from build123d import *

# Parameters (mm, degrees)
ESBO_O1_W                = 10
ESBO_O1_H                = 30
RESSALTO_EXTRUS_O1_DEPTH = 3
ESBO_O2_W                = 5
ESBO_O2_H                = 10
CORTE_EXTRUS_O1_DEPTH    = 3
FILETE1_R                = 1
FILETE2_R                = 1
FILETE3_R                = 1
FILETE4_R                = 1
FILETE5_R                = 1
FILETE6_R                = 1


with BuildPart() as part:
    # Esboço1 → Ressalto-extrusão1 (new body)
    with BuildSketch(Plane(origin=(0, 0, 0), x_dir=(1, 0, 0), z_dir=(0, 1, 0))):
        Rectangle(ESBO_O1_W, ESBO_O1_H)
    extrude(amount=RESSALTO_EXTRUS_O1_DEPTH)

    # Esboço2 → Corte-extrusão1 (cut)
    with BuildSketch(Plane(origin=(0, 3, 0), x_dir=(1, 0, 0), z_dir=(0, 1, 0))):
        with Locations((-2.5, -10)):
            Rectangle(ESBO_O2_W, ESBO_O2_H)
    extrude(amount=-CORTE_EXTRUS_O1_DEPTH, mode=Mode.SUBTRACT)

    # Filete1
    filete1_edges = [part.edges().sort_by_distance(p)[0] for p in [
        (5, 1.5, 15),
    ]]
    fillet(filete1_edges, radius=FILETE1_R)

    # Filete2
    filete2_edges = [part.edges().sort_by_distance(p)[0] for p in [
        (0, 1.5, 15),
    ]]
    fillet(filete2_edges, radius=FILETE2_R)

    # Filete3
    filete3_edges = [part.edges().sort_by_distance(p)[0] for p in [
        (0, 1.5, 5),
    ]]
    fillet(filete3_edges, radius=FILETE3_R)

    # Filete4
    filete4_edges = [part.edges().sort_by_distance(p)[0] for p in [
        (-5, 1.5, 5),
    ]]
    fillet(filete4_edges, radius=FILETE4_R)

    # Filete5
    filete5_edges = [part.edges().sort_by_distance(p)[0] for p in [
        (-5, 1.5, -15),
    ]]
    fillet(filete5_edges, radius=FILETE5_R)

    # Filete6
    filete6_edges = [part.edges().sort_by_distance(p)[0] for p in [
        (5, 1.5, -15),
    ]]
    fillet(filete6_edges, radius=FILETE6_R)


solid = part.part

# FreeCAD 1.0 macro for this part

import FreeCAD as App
import Part
import Sketcher
Q = App.Units.Quantity


def edges_at(feature, points):
    """Names of the edges that pass closest to the given points."""
    edges = feature.Shape.Edges
    near = lambda p: min(range(len(edges)), key=lambda i: edges[i].distToShape(Part.Vertex(*p))[0])
    return sorted({f"Edge{near(p) + 1}" for p in points})

doc = App.newDocument("Part")
body = doc.addObject("PartDesign::Body", "Body")

# Sketch on XZ plane
sketch1 = body.newObject("Sketcher::SketchObject", "Sketch")
sketch1.AttachmentSupport = (doc.getObject("XZ_Plane"), [""])
sketch1.MapMode = "FlatFace"
sketch1.addGeometry(Part.LineSegment(App.Vector(-5, -15, 0), App.Vector(-5, 15, 0)), False)
sketch1.addGeometry(Part.LineSegment(App.Vector(-5, 15, 0), App.Vector(5, 15, 0)), False)
sketch1.addGeometry(Part.LineSegment(App.Vector(5, 15, 0), App.Vector(5, -15, 0)), False)
sketch1.addGeometry(Part.LineSegment(App.Vector(5, -15, 0), App.Vector(-5, -15, 0)), False)
sketch1.addConstraint(Sketcher.Constraint("Coincident", 0, 2, 1, 1))
sketch1.addConstraint(Sketcher.Constraint("Coincident", 1, 2, 2, 1))
sketch1.addConstraint(Sketcher.Constraint("Coincident", 2, 2, 3, 1))
sketch1.addConstraint(Sketcher.Constraint("Coincident", 3, 2, 0, 1))
sketch1.addConstraint(Sketcher.Constraint("Vertical", 0))
sketch1.addConstraint(Sketcher.Constraint("Horizontal", 1))
sketch1.addConstraint(Sketcher.Constraint("Vertical", 2))
sketch1.addConstraint(Sketcher.Constraint("Horizontal", 3))
sketch1.addConstraint(Sketcher.Constraint("Symmetric", 0, 2, 2, 2, -1, 1))
sketch1.addConstraint(Sketcher.Constraint("DistanceX", 1, 1, 1, 2, Q("10 mm")))
sketch1.addConstraint(Sketcher.Constraint("DistanceY", 0, 1, 0, 2, Q("30 mm")))
pad1 = body.newObject("PartDesign::Pad", "Pad")
pad1.Profile = sketch1
pad1.Length = 3
pad1.Reversed = True

# Sketch on XZ plane
sketch2 = body.newObject("Sketcher::SketchObject", "Sketch001")
sketch2.AttachmentSupport = (doc.getObject("XZ_Plane"), [""])
sketch2.MapMode = "FlatFace"
sketch2.AttachmentOffset = App.Placement(App.Vector(0, 0, -3), App.Rotation())
sketch2.addGeometry(Part.LineSegment(App.Vector(-5, 5, 0), App.Vector(-5, 15, 0)), False)
sketch2.addGeometry(Part.LineSegment(App.Vector(-5, 15, 0), App.Vector(0, 15, 0)), False)
sketch2.addGeometry(Part.LineSegment(App.Vector(0, 15, 0), App.Vector(0, 5, 0)), False)
sketch2.addGeometry(Part.LineSegment(App.Vector(0, 5, 0), App.Vector(-5, 5, 0)), False)
sketch2.addConstraint(Sketcher.Constraint("Coincident", 0, 2, 1, 1))
sketch2.addConstraint(Sketcher.Constraint("Coincident", 1, 2, 2, 1))
sketch2.addConstraint(Sketcher.Constraint("Coincident", 2, 2, 3, 1))
sketch2.addConstraint(Sketcher.Constraint("Coincident", 3, 2, 0, 1))
sketch2.addConstraint(Sketcher.Constraint("Vertical", 0))
sketch2.addConstraint(Sketcher.Constraint("Horizontal", 1))
sketch2.addConstraint(Sketcher.Constraint("Vertical", 2))
sketch2.addConstraint(Sketcher.Constraint("Horizontal", 3))
sketch2.addConstraint(Sketcher.Constraint("PointOnObject", 1, 2, -2))
sketch2.addConstraint(Sketcher.Constraint("DistanceX", 1, 1, 1, 2, Q("5 mm")))
sketch2.addConstraint(Sketcher.Constraint("DistanceY", 0, 1, 0, 2, Q("10 mm")))
sketch2.addConstraint(Sketcher.Constraint("DistanceY", -1, 1, 0, 2, Q("15 mm")))
pocket1 = body.newObject("PartDesign::Pocket", "Pocket")
pocket1.Profile = sketch2
pocket1.Length = 3
pocket1.Reversed = True
doc.recompute()

fillet = body.newObject("PartDesign::Fillet", "Fillet")
fillet.Base = (pocket1, edges_at(pocket1, [(5, 1.5, 15)]))
fillet.Radius = 1
doc.recompute()

fillet2 = body.newObject("PartDesign::Fillet", "Fillet001")
fillet2.Base = (fillet, edges_at(fillet, [(0, 1.5, 15)]))
fillet2.Radius = 1
doc.recompute()

fillet3 = body.newObject("PartDesign::Fillet", "Fillet002")
fillet3.Base = (fillet2, edges_at(fillet2, [(0, 1.5, 5)]))
fillet3.Radius = 1
doc.recompute()

fillet4 = body.newObject("PartDesign::Fillet", "Fillet003")
fillet4.Base = (fillet3, edges_at(fillet3, [(-5, 1.5, 5)]))
fillet4.Radius = 1
doc.recompute()

fillet5 = body.newObject("PartDesign::Fillet", "Fillet004")
fillet5.Base = (fillet4, edges_at(fillet4, [(-5, 1.5, -15)]))
fillet5.Radius = 1
doc.recompute()

fillet6 = body.newObject("PartDesign::Fillet", "Fillet005")
fillet6.Base = (fillet5, edges_at(fillet5, [(5, 1.5, -15)]))
fillet6.Radius = 1

doc.recompute()
